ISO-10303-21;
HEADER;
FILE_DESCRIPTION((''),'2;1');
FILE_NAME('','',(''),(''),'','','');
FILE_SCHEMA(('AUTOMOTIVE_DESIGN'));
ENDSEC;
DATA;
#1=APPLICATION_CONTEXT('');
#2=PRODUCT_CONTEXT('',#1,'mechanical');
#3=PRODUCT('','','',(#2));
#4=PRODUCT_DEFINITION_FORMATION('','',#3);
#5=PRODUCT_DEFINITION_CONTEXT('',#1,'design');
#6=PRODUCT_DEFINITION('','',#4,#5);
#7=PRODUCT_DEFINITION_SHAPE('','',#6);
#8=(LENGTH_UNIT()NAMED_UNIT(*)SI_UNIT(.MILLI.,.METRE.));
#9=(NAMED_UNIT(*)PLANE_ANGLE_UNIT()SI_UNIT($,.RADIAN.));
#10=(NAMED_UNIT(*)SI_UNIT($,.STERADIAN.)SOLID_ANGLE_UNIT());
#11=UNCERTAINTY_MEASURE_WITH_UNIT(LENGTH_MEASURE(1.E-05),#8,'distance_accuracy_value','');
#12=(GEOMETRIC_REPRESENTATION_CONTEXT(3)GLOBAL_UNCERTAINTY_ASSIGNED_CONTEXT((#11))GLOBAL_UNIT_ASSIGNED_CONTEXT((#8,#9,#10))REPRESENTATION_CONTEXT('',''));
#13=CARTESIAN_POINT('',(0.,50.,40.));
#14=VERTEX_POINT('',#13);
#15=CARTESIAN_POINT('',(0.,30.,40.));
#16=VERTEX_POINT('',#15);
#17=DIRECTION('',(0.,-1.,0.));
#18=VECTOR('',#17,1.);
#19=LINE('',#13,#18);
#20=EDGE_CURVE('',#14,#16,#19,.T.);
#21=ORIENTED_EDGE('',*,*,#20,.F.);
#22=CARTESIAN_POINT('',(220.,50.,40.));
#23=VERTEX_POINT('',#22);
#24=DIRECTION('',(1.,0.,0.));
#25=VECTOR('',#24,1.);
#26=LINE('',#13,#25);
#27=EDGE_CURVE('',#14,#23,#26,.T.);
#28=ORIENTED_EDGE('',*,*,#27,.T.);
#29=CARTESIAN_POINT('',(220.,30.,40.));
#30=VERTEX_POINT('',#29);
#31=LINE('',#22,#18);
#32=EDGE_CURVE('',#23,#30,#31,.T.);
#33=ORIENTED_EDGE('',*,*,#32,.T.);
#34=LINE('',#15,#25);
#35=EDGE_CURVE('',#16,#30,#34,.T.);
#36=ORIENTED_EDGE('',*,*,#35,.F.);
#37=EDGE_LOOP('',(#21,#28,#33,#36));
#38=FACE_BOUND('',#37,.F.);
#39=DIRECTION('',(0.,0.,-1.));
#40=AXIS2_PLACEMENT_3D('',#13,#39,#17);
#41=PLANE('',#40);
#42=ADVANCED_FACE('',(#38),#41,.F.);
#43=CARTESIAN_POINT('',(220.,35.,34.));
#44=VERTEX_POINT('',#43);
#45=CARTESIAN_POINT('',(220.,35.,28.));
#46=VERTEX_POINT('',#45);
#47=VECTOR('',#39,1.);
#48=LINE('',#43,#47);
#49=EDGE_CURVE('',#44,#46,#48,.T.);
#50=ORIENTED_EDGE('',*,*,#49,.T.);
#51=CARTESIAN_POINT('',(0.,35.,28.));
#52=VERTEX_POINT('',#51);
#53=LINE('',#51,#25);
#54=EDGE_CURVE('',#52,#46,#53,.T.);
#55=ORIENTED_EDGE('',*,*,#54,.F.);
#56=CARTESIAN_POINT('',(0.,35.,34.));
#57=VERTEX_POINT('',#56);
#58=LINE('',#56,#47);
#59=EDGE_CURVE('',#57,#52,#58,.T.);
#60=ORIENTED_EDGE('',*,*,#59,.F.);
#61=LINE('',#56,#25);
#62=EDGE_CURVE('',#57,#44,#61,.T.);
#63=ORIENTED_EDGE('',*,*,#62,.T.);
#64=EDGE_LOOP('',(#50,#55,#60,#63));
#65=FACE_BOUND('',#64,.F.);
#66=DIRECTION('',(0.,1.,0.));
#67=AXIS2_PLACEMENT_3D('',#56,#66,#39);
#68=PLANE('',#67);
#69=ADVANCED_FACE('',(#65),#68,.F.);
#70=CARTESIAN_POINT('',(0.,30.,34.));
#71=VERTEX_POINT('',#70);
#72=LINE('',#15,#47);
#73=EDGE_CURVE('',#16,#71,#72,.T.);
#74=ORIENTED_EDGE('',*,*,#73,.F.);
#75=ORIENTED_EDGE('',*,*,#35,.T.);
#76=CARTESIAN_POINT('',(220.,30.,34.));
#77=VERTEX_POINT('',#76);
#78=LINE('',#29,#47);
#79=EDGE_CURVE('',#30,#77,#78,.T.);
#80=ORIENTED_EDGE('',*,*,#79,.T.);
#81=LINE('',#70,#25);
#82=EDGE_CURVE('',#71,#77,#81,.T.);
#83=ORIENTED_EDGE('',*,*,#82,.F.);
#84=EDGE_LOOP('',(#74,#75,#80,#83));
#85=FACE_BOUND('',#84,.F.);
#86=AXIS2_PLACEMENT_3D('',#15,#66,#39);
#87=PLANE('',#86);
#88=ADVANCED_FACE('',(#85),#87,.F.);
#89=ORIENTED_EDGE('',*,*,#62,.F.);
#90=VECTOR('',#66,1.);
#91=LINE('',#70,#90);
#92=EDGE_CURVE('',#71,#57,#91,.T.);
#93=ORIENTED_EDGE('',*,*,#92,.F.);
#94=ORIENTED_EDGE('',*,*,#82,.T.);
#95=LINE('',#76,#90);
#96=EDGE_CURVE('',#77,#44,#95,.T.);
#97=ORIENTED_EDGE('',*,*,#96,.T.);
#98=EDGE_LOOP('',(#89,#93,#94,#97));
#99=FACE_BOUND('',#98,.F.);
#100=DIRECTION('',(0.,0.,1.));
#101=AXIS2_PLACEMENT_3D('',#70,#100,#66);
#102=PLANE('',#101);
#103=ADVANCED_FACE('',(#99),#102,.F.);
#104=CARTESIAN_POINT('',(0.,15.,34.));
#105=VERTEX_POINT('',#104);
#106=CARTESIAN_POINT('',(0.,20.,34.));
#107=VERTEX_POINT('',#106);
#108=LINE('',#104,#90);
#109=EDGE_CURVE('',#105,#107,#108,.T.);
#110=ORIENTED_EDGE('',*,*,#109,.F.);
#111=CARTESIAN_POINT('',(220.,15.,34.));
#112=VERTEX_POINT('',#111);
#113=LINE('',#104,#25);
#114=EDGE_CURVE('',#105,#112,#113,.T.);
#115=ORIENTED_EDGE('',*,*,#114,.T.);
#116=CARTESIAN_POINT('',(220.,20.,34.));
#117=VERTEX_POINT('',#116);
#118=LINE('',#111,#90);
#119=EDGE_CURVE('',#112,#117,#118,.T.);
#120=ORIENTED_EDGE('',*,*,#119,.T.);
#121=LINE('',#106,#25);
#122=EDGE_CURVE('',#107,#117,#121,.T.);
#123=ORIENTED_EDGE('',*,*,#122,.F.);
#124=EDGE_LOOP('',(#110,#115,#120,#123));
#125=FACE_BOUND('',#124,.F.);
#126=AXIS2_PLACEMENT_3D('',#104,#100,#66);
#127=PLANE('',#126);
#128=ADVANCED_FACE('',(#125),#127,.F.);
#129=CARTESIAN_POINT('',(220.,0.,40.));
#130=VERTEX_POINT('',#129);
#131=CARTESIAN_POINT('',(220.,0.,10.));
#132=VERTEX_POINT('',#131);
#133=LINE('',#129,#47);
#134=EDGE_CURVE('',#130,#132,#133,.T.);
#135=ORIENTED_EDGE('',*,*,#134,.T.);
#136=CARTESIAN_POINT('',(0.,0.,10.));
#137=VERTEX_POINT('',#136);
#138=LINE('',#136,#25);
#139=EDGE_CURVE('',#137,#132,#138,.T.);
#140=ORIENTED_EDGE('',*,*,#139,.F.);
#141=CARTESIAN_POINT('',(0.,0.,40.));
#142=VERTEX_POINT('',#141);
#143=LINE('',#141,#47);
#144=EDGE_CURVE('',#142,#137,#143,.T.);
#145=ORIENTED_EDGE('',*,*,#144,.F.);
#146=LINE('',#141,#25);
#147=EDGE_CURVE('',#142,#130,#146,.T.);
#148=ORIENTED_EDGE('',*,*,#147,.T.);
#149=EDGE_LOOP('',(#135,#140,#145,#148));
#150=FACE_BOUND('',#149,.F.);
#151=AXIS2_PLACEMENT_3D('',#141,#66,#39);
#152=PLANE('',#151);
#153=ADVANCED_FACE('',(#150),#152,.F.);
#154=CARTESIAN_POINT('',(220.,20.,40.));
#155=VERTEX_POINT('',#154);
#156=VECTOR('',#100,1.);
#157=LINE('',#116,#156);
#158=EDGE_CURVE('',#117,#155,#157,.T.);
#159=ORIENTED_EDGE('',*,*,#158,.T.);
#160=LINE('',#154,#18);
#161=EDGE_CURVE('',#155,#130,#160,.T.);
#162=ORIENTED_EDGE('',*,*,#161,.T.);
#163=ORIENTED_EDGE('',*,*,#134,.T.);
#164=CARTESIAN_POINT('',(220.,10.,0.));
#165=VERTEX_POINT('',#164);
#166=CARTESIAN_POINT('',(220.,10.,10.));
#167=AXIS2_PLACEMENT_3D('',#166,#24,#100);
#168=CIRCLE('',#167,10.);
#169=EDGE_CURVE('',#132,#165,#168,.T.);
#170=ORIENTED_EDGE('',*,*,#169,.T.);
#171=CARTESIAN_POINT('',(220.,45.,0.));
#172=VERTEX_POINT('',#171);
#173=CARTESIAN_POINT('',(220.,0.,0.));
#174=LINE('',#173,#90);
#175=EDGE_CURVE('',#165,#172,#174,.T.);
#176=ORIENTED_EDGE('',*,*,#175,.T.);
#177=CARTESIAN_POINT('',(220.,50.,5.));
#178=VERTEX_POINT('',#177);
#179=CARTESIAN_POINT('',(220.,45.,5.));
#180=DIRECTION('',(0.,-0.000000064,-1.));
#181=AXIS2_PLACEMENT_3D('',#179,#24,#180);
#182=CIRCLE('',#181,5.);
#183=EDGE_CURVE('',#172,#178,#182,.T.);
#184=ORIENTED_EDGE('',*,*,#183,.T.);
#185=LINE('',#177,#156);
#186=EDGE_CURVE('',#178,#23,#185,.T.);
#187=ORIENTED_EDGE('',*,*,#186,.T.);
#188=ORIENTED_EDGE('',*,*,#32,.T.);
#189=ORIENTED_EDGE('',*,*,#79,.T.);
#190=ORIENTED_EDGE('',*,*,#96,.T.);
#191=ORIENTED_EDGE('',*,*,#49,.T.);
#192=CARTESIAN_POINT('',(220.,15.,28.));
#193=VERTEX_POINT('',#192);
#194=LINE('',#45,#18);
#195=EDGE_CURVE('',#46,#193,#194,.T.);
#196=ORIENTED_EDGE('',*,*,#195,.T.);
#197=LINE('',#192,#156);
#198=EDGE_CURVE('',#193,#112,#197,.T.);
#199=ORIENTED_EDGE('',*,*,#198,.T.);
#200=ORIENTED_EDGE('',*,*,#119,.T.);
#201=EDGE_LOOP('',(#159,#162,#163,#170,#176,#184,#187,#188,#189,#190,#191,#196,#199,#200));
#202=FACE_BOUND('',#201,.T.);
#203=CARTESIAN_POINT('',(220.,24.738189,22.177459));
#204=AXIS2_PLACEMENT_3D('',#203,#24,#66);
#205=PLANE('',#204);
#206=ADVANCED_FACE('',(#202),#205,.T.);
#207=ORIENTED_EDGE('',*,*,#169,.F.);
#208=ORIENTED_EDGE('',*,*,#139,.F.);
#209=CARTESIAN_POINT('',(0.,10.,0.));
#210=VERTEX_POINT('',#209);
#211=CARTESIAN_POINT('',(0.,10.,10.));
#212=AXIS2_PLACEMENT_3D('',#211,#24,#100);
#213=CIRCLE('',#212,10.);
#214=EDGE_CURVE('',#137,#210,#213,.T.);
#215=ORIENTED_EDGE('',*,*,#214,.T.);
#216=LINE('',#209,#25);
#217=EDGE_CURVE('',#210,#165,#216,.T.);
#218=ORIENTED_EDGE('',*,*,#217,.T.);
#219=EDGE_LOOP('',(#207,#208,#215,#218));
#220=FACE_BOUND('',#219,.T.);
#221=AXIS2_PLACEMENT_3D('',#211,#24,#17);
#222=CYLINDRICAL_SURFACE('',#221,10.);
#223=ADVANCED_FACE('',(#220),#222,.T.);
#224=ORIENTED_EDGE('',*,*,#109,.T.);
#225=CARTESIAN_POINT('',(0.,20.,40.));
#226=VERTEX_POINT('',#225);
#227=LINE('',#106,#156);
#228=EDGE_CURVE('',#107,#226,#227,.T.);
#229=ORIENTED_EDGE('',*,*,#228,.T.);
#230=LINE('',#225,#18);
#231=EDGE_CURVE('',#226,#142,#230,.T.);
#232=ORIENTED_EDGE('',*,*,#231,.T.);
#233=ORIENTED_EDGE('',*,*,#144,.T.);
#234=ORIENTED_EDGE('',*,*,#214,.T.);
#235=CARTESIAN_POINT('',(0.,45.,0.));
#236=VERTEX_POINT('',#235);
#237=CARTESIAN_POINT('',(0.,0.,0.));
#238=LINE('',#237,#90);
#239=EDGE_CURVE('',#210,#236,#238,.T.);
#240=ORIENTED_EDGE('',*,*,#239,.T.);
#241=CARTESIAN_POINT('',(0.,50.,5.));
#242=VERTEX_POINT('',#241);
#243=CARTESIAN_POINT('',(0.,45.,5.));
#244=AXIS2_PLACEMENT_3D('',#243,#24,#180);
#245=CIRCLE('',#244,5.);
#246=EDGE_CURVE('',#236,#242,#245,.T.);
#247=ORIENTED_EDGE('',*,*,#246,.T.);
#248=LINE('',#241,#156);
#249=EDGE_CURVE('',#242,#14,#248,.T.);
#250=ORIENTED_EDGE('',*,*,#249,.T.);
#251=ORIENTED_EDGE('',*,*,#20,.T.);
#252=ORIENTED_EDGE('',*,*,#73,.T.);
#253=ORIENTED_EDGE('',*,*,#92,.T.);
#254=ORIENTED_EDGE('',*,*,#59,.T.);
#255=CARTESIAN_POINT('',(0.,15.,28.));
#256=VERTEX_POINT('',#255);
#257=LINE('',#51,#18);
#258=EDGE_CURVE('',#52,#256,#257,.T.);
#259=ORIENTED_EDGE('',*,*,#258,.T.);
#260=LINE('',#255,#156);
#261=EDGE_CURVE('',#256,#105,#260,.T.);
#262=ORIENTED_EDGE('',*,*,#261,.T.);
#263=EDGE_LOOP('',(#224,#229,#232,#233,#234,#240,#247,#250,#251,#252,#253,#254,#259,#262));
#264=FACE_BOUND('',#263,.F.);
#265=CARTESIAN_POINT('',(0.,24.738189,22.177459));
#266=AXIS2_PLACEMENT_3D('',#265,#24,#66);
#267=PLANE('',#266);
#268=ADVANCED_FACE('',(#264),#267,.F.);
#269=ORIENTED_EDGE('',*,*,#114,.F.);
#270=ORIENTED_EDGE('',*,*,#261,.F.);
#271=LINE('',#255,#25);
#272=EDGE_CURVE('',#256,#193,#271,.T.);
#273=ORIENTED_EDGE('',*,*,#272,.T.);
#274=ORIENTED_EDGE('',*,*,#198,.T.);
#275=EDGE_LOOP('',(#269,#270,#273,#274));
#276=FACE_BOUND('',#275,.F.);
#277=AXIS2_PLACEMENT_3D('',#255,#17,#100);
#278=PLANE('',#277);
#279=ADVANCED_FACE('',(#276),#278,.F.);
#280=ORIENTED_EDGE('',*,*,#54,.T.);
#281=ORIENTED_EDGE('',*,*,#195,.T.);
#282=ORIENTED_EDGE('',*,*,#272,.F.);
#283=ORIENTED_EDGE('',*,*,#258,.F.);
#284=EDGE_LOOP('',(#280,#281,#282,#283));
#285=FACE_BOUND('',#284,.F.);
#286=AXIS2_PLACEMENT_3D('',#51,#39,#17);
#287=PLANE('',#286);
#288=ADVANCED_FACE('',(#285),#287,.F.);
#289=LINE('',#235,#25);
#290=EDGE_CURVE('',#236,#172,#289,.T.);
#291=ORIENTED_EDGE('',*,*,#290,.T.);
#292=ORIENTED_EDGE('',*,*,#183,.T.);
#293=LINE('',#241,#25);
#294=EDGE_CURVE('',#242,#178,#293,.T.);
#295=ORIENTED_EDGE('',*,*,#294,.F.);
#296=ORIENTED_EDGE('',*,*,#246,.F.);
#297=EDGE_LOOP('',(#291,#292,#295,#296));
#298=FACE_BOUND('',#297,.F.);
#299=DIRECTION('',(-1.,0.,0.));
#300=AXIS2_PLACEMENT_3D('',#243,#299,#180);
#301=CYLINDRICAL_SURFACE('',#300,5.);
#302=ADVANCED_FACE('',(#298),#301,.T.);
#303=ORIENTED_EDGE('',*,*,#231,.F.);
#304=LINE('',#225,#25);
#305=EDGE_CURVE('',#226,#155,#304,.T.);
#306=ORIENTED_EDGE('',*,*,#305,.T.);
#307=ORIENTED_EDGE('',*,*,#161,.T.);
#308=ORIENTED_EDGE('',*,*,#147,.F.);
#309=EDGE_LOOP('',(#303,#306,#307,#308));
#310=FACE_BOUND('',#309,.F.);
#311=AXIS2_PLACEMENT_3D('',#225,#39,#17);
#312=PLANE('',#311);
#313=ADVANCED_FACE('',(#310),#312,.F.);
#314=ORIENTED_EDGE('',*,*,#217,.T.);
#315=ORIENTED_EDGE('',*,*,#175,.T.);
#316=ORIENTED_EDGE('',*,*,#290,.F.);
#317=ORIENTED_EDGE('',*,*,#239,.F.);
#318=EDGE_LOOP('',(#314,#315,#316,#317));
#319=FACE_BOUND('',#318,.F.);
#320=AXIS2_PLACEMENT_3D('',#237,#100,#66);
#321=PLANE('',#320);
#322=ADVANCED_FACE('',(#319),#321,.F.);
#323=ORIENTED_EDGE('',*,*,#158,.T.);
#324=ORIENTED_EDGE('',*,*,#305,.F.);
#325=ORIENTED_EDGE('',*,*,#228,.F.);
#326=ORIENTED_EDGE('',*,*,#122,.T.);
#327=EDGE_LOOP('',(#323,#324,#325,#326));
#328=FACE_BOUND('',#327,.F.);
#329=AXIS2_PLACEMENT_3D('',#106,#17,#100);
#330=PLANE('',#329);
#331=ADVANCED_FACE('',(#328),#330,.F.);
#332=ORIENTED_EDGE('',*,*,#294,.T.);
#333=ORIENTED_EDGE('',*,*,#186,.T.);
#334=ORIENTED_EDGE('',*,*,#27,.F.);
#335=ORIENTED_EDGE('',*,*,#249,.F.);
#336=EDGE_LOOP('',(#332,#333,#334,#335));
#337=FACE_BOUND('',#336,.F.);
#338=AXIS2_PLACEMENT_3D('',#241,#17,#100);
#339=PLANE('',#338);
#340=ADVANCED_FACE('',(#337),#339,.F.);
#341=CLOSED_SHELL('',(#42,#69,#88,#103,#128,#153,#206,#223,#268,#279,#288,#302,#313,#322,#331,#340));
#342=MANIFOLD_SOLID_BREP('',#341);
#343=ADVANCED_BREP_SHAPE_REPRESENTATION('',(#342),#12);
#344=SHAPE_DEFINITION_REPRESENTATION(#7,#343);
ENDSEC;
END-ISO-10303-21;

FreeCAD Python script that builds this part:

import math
import FreeCAD as App
import Part
import Sketcher


def edges_at(feature, points):
    """Names of the edges that pass closest to the given points."""
    edges = feature.Shape.Edges
    near = lambda p: min(range(len(edges)), key=lambda i: edges[i].distToShape(Part.Vertex(*p))[0])
    return sorted({f"Edge{near(p) + 1}" for p in points})

doc = App.newDocument("Part")
body = doc.addObject("PartDesign::Body", "Body")

# Sketch on YZ plane
sketch1 = body.newObject("Sketcher::SketchObject", "Sketch")
sketch1.AttachmentSupport = (doc.getObject("YZ_Plane"), [""])
sketch1.MapMode = "FlatFace"
sketch1.addGeometry([
    Part.LineSegment(App.Vector(50, 5, 0), App.Vector(50, 40, 0)),  # 0
    Part.LineSegment(App.Vector(50, 40, 0), App.Vector(30, 40, 0)),  # 1
    Part.LineSegment(App.Vector(30, 40, 0), App.Vector(30, 34, 0)),  # 2
    Part.LineSegment(App.Vector(30, 34, 0), App.Vector(35, 34, 0)),  # 3
    Part.LineSegment(App.Vector(35, 34, 0), App.Vector(35, 28, 0)),  # 4
    Part.LineSegment(App.Vector(35, 28, 0), App.Vector(15, 28, 0)),  # 5
    Part.LineSegment(App.Vector(15, 28, 0), App.Vector(15, 34, 0)),  # 6
    Part.LineSegment(App.Vector(15, 34, 0), App.Vector(20, 34, 0)),  # 7
    Part.LineSegment(App.Vector(20, 34, 0), App.Vector(20, 40, 0)),  # 8
    Part.LineSegment(App.Vector(20, 40, 0), App.Vector(0, 40, 0)),  # 9
    Part.LineSegment(App.Vector(0, 40, 0), App.Vector(0, 0, 0)),  # 10
    Part.LineSegment(App.Vector(0, 0, 0), App.Vector(45, 0, 0)),  # 11
    Part.ArcOfCircle(Part.Circle(App.Vector(45, 5, 0), App.Vector(0, 0, 1), 5), math.radians(-90), math.radians(0)),  # 12
], False)
sketch1.addConstraint([
    Sketcher.Constraint("Coincident", 0, 2, 1, 1),
    Sketcher.Constraint("Coincident", 1, 2, 2, 1),
    Sketcher.Constraint("Coincident", 2, 2, 3, 1),
    Sketcher.Constraint("Coincident", 3, 2, 4, 1),
    Sketcher.Constraint("Coincident", 4, 2, 5, 1),
    Sketcher.Constraint("Coincident", 5, 2, 6, 1),
    Sketcher.Constraint("Coincident", 6, 2, 7, 1),
    Sketcher.Constraint("Coincident", 7, 2, 8, 1),
    Sketcher.Constraint("Coincident", 8, 2, 9, 1),
    Sketcher.Constraint("Coincident", 9, 2, 10, 1),
    Sketcher.Constraint("Coincident", 10, 2, 11, 1),
    Sketcher.Constraint("Tangent", 11, 2, 12, 1),
    Sketcher.Constraint("Tangent", 12, 2, 0, 1),
    Sketcher.Constraint("Vertical", 0),
    Sketcher.Constraint("Horizontal", 1),
    Sketcher.Constraint("Vertical", 2),
    Sketcher.Constraint("Horizontal", 3),
    Sketcher.Constraint("Vertical", 4),
    Sketcher.Constraint("Horizontal", 5),
    Sketcher.Constraint("Vertical", 6),
    Sketcher.Constraint("Horizontal", 7),
    Sketcher.Constraint("Vertical", 8),
    Sketcher.Constraint("Horizontal", 9),
    Sketcher.Constraint("Vertical", 10),
    Sketcher.Constraint("Horizontal", 11),
    Sketcher.Constraint("Coincident", 10, 2, -1, 1),
    Sketcher.Constraint("Horizontal", 3, 2, 6, 2),
    Sketcher.Constraint("Horizontal", 1, 2, 8, 2),
    Sketcher.Constraint("Equal", 1, 5),
    Sketcher.Constraint("Equal", 3, 7),
    Sketcher.Constraint("Equal", 5, 9),
    Sketcher.Constraint("Equal", 2, 4),
    Sketcher.Constraint("Radius", 12, 5.0),
    Sketcher.Constraint("DistanceX", 1, 2, 1, 1, 20.0),
    Sketcher.Constraint("DistanceX", 3, 1, 3, 2, 5.0),
    Sketcher.Constraint("DistanceY", 0, 1, 0, 2, 35.0),
    Sketcher.Constraint("DistanceY", 2, 2, 2, 1, 6.0),
])
pad1 = body.newObject("PartDesign::Pad", "Pad")
pad1.Profile = sketch1
pad1.Length = 220
doc.recompute()

fillet = body.newObject("PartDesign::Fillet", "Fillet")
fillet.Base = (pad1, edges_at(pad1, [(110, 0, 0)]))
fillet.Radius = 10

doc.recompute()
